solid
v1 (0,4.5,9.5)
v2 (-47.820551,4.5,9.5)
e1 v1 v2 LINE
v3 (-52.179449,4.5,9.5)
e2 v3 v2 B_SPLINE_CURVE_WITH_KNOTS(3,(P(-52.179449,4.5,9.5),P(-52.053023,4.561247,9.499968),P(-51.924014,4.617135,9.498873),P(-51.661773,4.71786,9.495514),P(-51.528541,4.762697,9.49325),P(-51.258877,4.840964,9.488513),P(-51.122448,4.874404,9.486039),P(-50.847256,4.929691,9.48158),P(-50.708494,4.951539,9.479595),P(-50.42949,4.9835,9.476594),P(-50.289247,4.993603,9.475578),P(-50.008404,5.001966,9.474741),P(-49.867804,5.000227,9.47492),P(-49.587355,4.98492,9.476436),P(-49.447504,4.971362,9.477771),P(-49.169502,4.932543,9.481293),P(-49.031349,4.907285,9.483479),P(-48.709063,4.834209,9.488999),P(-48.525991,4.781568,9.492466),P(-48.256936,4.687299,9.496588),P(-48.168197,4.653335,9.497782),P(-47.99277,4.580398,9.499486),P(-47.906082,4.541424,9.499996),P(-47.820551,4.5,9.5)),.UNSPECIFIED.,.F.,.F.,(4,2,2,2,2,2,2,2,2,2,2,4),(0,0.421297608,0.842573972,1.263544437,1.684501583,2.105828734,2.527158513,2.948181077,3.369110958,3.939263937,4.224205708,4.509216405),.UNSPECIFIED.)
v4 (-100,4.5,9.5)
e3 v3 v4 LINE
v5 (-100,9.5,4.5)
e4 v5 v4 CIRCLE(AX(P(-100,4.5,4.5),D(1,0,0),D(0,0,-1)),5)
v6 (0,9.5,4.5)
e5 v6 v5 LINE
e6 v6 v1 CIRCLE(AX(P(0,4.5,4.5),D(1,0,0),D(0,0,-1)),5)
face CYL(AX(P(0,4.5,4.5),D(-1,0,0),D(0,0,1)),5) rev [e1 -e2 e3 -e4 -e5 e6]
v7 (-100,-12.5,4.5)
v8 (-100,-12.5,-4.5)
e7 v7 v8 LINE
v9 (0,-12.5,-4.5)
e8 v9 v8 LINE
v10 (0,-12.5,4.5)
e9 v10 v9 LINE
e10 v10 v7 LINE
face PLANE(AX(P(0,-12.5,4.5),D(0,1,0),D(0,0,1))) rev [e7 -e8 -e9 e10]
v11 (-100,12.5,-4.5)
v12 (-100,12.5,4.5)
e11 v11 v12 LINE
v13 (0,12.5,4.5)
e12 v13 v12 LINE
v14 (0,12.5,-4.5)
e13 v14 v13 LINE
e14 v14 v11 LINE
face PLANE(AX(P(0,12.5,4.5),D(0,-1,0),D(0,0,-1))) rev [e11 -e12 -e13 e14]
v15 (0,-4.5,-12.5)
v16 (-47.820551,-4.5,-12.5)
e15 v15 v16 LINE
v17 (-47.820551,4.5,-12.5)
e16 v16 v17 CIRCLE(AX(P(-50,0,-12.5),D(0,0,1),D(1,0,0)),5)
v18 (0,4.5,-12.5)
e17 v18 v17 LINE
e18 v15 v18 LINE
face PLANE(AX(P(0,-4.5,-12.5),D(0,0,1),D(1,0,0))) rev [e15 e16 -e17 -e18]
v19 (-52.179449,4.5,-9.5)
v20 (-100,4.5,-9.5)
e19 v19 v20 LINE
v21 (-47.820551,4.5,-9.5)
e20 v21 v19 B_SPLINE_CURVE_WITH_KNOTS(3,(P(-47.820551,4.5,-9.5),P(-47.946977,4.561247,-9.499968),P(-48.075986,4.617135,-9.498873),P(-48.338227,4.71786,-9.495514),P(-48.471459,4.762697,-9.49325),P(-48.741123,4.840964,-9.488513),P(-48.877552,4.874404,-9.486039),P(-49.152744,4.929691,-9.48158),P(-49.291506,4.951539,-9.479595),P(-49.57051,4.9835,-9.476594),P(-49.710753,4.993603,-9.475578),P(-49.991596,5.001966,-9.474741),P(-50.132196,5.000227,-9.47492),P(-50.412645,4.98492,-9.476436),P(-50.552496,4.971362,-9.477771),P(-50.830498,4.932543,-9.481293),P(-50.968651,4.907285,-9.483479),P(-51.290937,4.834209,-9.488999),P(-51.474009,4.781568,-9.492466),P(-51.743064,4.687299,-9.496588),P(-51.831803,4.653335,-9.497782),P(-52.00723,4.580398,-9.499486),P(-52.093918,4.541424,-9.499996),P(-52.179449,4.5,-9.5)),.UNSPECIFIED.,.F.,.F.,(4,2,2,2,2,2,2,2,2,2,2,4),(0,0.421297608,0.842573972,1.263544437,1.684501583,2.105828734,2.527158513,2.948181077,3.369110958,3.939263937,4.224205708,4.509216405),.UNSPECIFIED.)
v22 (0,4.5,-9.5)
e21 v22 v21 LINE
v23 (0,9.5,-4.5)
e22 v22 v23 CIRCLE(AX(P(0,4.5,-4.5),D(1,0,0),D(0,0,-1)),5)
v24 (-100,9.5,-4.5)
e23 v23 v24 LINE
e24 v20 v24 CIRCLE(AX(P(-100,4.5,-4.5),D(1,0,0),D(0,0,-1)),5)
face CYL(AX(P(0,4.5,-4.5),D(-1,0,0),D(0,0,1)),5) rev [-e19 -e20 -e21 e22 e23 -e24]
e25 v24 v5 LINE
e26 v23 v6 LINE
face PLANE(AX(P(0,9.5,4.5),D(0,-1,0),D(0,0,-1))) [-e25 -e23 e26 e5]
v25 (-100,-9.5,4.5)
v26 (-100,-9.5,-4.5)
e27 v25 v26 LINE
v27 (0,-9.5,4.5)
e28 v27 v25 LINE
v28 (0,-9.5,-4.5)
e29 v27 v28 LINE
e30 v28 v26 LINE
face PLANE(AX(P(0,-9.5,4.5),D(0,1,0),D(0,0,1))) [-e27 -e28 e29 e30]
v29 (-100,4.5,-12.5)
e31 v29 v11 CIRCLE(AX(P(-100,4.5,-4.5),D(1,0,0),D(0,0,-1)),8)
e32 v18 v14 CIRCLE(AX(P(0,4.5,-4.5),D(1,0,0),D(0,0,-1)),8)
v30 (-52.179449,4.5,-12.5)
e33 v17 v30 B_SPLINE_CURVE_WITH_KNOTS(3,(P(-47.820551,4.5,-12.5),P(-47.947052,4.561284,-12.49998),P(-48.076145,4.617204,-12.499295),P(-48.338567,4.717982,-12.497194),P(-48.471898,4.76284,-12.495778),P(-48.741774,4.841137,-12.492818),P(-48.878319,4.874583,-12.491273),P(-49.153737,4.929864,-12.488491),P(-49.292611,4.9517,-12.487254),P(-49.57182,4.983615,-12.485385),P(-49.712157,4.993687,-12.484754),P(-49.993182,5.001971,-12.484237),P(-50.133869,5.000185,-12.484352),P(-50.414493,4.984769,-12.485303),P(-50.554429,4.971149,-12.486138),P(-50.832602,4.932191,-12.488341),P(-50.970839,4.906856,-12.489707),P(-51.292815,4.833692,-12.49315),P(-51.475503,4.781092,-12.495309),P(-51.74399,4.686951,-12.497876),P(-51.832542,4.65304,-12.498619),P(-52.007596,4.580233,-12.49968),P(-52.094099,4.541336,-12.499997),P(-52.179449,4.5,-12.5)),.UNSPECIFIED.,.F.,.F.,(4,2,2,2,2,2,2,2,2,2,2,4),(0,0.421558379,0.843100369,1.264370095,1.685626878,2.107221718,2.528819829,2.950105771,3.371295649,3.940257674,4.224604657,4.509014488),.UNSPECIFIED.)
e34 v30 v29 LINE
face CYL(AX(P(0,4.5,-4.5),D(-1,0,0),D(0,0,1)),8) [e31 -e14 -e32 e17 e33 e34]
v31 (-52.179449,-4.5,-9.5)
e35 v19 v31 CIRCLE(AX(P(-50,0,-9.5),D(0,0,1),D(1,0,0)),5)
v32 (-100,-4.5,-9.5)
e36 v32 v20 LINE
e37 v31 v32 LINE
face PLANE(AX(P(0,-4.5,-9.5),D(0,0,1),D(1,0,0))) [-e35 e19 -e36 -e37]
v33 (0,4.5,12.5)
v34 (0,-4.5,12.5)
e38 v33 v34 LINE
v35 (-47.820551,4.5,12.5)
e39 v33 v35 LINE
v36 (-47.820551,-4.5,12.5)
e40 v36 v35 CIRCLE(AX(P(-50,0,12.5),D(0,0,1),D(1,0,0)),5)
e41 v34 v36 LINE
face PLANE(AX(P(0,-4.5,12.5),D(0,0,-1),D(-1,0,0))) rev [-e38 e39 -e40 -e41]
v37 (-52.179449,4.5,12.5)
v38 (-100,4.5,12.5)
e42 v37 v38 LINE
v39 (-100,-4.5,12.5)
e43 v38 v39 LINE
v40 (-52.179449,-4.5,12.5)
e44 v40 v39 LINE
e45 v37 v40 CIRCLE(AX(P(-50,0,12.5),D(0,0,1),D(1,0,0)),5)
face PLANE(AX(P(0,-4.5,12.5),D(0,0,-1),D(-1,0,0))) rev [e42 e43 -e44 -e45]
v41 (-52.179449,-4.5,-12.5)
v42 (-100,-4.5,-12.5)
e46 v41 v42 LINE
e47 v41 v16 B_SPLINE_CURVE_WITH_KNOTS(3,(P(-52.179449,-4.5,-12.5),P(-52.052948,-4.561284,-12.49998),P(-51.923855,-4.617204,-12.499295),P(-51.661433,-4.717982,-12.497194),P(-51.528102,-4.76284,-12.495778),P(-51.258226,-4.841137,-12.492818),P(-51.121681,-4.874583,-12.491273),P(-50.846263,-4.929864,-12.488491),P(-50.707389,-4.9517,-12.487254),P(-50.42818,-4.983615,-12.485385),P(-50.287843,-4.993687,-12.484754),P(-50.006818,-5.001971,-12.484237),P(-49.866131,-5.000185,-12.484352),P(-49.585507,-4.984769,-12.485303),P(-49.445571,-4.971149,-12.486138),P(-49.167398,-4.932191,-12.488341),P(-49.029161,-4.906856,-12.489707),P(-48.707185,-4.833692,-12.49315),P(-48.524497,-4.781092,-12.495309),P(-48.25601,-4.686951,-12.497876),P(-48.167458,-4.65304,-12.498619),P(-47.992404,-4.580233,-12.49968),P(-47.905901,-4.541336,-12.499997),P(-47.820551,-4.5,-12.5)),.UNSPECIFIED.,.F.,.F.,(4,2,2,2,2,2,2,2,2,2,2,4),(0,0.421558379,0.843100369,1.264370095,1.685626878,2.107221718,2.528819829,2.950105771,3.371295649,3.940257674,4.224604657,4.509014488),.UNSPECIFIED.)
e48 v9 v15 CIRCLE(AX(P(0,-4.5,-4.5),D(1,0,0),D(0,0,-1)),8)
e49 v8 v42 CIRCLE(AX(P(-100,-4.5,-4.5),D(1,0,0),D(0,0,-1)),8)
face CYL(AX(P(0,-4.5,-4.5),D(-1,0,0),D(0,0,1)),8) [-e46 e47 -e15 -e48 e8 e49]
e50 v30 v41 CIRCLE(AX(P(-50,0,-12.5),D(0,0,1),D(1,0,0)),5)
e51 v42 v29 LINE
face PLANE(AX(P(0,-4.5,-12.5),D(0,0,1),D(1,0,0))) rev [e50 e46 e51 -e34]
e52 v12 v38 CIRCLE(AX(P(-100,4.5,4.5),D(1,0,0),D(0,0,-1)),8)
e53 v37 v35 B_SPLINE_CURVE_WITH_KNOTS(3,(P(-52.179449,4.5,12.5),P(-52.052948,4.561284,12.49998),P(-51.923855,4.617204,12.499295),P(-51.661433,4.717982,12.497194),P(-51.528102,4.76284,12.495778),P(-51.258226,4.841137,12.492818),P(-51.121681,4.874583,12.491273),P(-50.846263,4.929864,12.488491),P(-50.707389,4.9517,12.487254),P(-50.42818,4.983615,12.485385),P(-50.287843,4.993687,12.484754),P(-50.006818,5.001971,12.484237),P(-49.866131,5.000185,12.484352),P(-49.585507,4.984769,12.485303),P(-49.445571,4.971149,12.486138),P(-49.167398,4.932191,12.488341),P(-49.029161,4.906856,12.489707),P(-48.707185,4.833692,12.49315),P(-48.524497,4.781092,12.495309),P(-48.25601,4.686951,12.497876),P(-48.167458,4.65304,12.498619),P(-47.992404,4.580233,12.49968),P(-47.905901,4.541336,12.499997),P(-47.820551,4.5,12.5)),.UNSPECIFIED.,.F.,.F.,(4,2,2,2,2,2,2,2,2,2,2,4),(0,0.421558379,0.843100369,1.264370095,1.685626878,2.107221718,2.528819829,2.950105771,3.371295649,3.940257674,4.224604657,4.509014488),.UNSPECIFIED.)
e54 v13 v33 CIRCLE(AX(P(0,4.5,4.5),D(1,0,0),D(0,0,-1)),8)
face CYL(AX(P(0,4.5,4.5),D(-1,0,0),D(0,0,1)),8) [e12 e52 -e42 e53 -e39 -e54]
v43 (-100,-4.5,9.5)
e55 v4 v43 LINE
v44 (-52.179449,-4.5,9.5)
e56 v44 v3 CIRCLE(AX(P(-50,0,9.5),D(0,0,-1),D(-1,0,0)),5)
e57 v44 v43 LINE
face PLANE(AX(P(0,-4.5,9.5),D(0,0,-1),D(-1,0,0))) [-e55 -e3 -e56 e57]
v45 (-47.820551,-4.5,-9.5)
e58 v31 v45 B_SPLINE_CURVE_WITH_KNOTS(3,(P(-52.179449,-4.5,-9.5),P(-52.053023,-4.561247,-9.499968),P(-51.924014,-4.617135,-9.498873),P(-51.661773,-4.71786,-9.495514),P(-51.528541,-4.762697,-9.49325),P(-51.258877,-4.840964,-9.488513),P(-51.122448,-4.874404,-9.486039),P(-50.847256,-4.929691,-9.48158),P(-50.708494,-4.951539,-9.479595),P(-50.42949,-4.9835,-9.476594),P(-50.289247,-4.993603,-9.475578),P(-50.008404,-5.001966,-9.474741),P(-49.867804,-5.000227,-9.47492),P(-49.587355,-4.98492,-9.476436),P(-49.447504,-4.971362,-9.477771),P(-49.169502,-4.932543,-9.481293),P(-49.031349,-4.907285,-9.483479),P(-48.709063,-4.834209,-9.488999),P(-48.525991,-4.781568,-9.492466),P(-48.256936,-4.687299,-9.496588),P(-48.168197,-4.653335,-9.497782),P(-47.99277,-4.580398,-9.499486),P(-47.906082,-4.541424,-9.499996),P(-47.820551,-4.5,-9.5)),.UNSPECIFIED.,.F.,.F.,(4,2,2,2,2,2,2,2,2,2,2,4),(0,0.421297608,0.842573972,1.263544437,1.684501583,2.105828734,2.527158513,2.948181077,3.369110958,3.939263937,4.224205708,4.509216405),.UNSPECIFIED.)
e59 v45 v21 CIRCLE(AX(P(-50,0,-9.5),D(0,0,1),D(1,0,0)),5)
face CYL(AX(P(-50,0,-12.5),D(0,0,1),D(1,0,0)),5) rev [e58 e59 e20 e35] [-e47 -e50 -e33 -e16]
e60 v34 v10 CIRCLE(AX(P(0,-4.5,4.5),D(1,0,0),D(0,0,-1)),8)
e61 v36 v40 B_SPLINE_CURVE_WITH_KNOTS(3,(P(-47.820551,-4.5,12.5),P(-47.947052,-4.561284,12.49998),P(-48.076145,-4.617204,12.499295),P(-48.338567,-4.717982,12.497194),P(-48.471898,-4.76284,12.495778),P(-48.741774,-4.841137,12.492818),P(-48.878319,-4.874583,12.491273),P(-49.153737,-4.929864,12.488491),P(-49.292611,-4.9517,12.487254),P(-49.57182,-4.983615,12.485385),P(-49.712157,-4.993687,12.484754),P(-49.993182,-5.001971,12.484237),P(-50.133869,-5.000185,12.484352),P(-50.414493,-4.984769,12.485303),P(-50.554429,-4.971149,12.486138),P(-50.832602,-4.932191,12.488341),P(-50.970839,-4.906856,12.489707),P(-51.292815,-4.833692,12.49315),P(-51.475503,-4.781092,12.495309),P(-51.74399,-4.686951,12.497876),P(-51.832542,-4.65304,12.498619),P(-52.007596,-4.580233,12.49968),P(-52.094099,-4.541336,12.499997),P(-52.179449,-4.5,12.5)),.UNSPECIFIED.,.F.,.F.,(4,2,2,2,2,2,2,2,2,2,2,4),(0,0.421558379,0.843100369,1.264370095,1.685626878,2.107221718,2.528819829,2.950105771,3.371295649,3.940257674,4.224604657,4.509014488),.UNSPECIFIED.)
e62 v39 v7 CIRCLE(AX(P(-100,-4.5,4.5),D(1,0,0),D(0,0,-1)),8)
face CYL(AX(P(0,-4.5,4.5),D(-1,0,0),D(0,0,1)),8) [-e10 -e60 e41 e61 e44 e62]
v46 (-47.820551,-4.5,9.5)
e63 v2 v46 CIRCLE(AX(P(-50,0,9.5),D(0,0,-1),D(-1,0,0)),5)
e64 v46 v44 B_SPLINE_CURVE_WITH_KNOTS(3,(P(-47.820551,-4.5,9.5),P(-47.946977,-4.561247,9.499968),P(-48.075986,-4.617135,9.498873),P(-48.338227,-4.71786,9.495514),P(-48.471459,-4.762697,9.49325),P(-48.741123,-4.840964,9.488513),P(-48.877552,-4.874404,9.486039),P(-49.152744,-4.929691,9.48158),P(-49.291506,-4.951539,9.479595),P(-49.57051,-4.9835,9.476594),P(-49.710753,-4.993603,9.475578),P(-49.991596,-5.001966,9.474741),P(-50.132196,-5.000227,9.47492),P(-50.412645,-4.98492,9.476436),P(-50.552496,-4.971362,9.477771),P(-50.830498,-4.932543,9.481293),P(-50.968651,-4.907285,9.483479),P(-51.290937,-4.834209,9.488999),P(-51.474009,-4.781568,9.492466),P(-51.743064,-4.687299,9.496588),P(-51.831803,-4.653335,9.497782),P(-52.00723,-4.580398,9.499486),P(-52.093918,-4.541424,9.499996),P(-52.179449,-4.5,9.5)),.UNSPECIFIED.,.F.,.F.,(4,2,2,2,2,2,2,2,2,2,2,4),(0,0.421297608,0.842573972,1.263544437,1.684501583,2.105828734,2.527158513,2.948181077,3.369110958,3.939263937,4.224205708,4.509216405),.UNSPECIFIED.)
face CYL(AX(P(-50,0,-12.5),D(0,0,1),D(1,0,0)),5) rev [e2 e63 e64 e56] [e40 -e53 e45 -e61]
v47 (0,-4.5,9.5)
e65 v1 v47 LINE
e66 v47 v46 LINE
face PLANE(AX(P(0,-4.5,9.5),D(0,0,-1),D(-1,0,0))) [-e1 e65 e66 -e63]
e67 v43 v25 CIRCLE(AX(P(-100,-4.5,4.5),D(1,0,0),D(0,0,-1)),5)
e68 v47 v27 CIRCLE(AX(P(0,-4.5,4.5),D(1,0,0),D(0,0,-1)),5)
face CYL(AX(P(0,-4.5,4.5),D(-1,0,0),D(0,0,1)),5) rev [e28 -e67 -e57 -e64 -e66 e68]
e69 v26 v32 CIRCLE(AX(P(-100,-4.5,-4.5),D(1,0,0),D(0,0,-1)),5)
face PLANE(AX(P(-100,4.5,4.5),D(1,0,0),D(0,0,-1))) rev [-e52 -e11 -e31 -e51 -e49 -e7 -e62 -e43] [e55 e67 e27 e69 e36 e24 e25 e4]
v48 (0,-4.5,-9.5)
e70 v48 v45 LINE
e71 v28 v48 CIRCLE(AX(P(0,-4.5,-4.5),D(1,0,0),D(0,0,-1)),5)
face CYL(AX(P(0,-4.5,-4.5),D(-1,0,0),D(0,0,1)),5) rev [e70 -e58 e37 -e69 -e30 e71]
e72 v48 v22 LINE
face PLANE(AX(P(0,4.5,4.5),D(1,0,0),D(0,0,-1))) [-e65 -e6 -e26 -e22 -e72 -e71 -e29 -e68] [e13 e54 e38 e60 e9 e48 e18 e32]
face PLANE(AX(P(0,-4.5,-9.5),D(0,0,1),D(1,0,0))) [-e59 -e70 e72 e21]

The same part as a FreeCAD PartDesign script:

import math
import FreeCAD as App
import Part
import Sketcher

V = App.Vector
Q = App.Units.Quantity

doc = App.newDocument("Part")
params = doc.addObject("Spreadsheet::Sheet", "Params")
for row, (alias, value) in enumerate([
    ("sketch1_radius", "8 mm"),
    ("sketch1_radius2", "5 mm"),
    ("sketch1_width", "9 mm"),
    ("sketch2_width", "100 mm"),
    ("sketch3_diameter", "10 mm"),
], start=1):
    params.set(f"A{row}", alias)
    params.set(f"B{row}", "=" + value)
    params.setAlias(f"B{row}", alias)

body = doc.addObject("PartDesign::Body", "Body")

sketch1 = body.newObject("Sketcher::SketchObject", "Sketch")
sketch1.AttachmentSupport = (doc.getObject("YZ_Plane"), [""])
sketch1.MapMode = "FlatFace"
sketch1.addGeometry([
    Part.LineSegment(V(12.5, -4.5, 0), V(12.5, 4.5, 0)),
    Part.ArcOfCircle(Part.Circle(V(4.5, 4.5, 0), V(0, 0, 1), 8), math.radians(0), math.radians(90)),
    Part.LineSegment(V(4.5, 12.5, 0), V(-4.5, 12.5, 0)),
    Part.ArcOfCircle(Part.Circle(V(-4.5, 4.5, 0), V(0, 0, 1), 8), math.radians(90), math.radians(180)),
    Part.LineSegment(V(-12.5, 4.5, 0), V(-12.5, -4.5, 0)),
    Part.ArcOfCircle(Part.Circle(V(-4.5, -4.5, 0), V(0, 0, 1), 8), math.radians(-180), math.radians(-90)),
    Part.LineSegment(V(-4.5, -12.5, 0), V(4.5, -12.5, 0)),
    Part.ArcOfCircle(Part.Circle(V(4.5, -4.5, 0), V(0, 0, 1), 8), math.radians(-90), math.radians(0)),
    Part.LineSegment(V(9.5, 4.5, 0), V(9.5, -4.5, 0)),
    Part.ArcOfCircle(Part.Circle(V(4.5, -4.5, 0), V(0, 0, 1), 5), math.radians(-90), math.radians(0)),
    Part.LineSegment(V(4.5, -9.5, 0), V(-4.5, -9.5, 0)),
    Part.ArcOfCircle(Part.Circle(V(-4.5, -4.5, 0), V(0, 0, 1), 5), math.radians(180), math.radians(270)),
    Part.LineSegment(V(-9.5, -4.5, 0), V(-9.5, 4.5, 0)),
    Part.ArcOfCircle(Part.Circle(V(-4.5, 4.5, 0), V(0, 0, 1), 5), math.radians(90), math.radians(180)),
    Part.LineSegment(V(-4.5, 9.5, 0), V(4.5, 9.5, 0)),
    Part.ArcOfCircle(Part.Circle(V(4.5, 4.5, 0), V(0, 0, 1), 5), math.radians(0), math.radians(90)),
], False)
sketch1.addConstraint([
    Sketcher.Constraint("Tangent", 0, 2, 1, 1),
    Sketcher.Constraint("Tangent", 1, 2, 2, 1),
    Sketcher.Constraint("Tangent", 2, 2, 3, 1),
    Sketcher.Constraint("Tangent", 3, 2, 4, 1),
    Sketcher.Constraint("Tangent", 4, 2, 5, 1),
    Sketcher.Constraint("Tangent", 5, 2, 6, 1),
    Sketcher.Constraint("Tangent", 6, 2, 7, 1),
    Sketcher.Constraint("Tangent", 7, 2, 0, 1),
    Sketcher.Constraint("Tangent", 8, 2, 9, 2),
    Sketcher.Constraint("Tangent", 9, 1, 10, 1),
    Sketcher.Constraint("Tangent", 10, 2, 11, 2),
    Sketcher.Constraint("Tangent", 11, 1, 12, 1),
    Sketcher.Constraint("Tangent", 12, 2, 13, 2),
    Sketcher.Constraint("Tangent", 13, 1, 14, 1),
    Sketcher.Constraint("Tangent", 14, 2, 15, 2),
    Sketcher.Constraint("Tangent", 15, 1, 8, 1),
    Sketcher.Constraint("Vertical", 0),
    Sketcher.Constraint("Horizontal", 2),
    Sketcher.Constraint("Vertical", 4),
    Sketcher.Constraint("Horizontal", 6),
    Sketcher.Constraint("Vertical", 8),
    Sketcher.Constraint("Horizontal", 10),
    Sketcher.Constraint("Vertical", 12),
    Sketcher.Constraint("Horizontal", 14),
    Sketcher.Constraint("Coincident", 9, 3, 7, 3),
    Sketcher.Constraint("Coincident", 11, 3, 5, 3),
    Sketcher.Constraint("Coincident", 13, 3, 3, 3),
    Sketcher.Constraint("Equal", 1, 3),
    Sketcher.Constraint("Equal", 3, 5),
    Sketcher.Constraint("Equal", 5, 7),
    Sketcher.Constraint("Equal", 13, 15),
    Sketcher.Constraint("Symmetric", 1, 3, 5, 3, -1, 1),
    Sketcher.Constraint("Equal", 14, 0),
    Sketcher.Constraint("Radius", 1, Q("8 mm")),
    Sketcher.Constraint("Radius", 9, Q("5 mm")),
    Sketcher.Constraint("DistanceX", 2, 2, 2, 1, Q("9 mm")),
])
sketch1.setExpression("Constraints[33]", "Params.sketch1_radius")
sketch1.setExpression("Constraints[34]", "Params.sketch1_radius2")
sketch1.setExpression("Constraints[35]", "Params.sketch1_width")

sketch2 = body.newObject("Sketcher::SketchObject", "Sketch001")
sketch2.AttachmentSupport = (doc.getObject("XY_Plane"), [""])
sketch2.MapMode = "FlatFace"
sketch2.addGeometry(Part.LineSegment(V(0, 0, 0), V(-100, 0, 0)), False)
sketch2.addConstraint([
    Sketcher.Constraint("Horizontal", 0),
    Sketcher.Constraint("Coincident", 0, 1, -1, 1),
    Sketcher.Constraint("DistanceX", 0, 2, 0, 1, Q("100 mm")),
])
sketch2.setExpression("Constraints[2]", "Params.sketch2_width")
doc.recompute()

additivepipe = body.newObject("PartDesign::AdditivePipe", "AdditivePipe")
additivepipe.Profile = sketch1
additivepipe.Spine = (sketch2, ["Edge1"])

sketch3 = body.newObject("Sketcher::SketchObject", "Sketch002")
sketch3.AttachmentSupport = (doc.getObject("XY_Plane"), [""])
sketch3.MapMode = "FlatFace"
sketch3.addGeometry(Part.Circle(V(-50, 0, 0), V(0, 0, 1), 5), False)
sketch3.addConstraint([
    Sketcher.Constraint("PointOnObject", 0, 3, -1),
    Sketcher.Constraint("Diameter", 0, Q("10 mm")),
    Sketcher.Constraint("DistanceX", 0, 3, -1, 1, Q("50 mm")),
])
sketch3.setExpression("Constraints[1]", "Params.sketch3_diameter")
pocket1 = body.newObject("PartDesign::Pocket", "Pocket")
pocket1.Profile = sketch3
pocket1.Type = "ThroughAll"
pocket1.Midplane = True

doc.recompute()
